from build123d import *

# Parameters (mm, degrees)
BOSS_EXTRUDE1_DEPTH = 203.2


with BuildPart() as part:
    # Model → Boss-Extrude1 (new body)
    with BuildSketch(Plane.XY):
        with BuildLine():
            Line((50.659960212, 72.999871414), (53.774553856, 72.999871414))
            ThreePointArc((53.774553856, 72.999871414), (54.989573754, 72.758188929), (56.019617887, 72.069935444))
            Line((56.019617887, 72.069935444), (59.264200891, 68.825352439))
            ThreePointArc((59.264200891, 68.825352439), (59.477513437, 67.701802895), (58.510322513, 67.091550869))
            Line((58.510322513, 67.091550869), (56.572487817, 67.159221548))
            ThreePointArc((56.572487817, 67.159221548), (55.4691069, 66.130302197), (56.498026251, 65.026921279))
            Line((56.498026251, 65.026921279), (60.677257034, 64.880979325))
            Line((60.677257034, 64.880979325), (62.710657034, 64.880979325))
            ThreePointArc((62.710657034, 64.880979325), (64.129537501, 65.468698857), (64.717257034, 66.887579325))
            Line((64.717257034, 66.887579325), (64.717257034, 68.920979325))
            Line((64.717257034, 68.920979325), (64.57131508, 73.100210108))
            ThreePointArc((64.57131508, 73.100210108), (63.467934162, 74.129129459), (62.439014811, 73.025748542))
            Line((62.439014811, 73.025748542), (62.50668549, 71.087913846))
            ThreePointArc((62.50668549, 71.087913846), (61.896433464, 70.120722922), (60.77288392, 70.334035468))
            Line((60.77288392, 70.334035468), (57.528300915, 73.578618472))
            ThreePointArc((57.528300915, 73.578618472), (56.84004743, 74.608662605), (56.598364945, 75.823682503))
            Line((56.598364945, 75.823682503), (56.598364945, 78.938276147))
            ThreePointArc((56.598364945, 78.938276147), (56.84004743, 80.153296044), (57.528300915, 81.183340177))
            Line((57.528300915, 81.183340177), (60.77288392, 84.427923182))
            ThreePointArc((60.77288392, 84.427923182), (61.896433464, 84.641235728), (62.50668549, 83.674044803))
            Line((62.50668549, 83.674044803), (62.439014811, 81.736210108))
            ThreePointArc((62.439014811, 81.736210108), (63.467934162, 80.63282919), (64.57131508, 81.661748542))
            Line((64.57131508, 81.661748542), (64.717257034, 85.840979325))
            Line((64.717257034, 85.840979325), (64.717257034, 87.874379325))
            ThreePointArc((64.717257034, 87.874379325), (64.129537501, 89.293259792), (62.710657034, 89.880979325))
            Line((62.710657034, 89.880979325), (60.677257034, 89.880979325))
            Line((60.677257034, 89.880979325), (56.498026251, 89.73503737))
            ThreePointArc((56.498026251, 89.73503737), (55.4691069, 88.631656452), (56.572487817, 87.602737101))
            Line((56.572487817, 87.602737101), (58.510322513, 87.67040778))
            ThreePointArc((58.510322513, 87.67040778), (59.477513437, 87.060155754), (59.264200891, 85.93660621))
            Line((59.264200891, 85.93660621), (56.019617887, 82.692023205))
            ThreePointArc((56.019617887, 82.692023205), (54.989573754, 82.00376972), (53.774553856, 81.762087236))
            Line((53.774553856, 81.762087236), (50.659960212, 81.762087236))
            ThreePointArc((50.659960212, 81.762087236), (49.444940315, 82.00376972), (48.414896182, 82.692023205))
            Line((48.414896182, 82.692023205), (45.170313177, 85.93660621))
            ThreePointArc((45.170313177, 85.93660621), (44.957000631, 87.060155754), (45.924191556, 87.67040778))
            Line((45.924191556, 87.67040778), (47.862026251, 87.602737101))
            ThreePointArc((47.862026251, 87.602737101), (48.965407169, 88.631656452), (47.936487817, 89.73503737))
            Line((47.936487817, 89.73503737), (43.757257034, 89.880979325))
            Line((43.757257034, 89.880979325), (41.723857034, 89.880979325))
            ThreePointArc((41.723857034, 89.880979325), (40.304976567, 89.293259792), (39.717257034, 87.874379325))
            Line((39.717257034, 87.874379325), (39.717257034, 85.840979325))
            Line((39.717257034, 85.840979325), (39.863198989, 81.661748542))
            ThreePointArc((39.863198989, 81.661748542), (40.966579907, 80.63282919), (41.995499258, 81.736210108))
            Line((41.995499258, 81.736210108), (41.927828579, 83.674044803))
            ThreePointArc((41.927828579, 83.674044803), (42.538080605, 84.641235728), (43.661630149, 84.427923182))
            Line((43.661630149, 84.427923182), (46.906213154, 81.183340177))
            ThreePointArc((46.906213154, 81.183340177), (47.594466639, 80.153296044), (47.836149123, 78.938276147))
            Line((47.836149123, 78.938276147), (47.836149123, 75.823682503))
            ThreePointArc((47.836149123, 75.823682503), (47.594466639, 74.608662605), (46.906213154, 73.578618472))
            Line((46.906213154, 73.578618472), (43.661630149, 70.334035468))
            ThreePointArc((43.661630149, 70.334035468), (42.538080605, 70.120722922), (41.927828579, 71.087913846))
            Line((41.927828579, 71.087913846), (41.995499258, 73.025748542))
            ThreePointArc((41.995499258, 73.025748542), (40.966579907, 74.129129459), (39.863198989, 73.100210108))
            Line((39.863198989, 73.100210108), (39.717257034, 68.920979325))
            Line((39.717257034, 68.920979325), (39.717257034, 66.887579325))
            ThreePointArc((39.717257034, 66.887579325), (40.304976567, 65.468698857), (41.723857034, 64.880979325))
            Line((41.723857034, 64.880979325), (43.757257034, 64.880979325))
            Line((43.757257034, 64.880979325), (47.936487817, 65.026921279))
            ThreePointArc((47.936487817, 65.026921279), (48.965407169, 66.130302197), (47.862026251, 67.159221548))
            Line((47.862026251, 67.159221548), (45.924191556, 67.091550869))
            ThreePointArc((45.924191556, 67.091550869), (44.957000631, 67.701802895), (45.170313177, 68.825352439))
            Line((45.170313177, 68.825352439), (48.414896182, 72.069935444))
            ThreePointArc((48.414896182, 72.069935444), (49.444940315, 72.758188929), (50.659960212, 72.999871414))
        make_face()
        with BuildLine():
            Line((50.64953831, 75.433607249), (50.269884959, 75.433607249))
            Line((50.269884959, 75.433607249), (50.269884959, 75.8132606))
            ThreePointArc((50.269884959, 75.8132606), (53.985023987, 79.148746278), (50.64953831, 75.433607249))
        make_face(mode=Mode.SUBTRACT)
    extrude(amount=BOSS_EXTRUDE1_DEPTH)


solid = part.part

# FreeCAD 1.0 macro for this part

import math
import FreeCAD as App
import Part
import Sketcher
from FreeCAD import Vector
Q = App.Units.Quantity

doc = App.newDocument("Part")
body = doc.addObject("PartDesign::Body", "Body")

sketch1 = body.newObject("Sketcher::SketchObject", "Sketch")
sketch1.AttachmentSupport = (doc.getObject("XY_Plane"), [""])
sketch1.MapMode = "FlatFace"
sketch1.addGeometry([
    Part.LineSegment(Vector(50.66, 73, 0), Vector(53.77, 73, 0)),
    Part.ArcOfCircle(Part.Circle(Vector(53.77, 69.82, 0), Vector(0, 0, 1), 3.18), math.radians(45), math.radians(90)),
    Part.LineSegment(Vector(56.02, 72.07, 0), Vector(59.26, 68.83, 0)),
    Part.ArcOfCircle(Part.Circle(Vector(58.55, 68.11, 0), Vector(0, 0, 1), 1.02), math.radians(-92), math.radians(45)),
    Part.LineSegment(Vector(58.51, 67.09, 0), Vector(56.57, 67.16, 0)),
    Part.ArcOfCircle(Part.Circle(Vector(56.54, 66.09, 0), Vector(0, 0, 1), 1.07), math.radians(88), math.radians(268)),
    Part.LineSegment(Vector(56.5, 65.03, 0), Vector(60.68, 64.88, 0)),
    Part.LineSegment(Vector(60.68, 64.88, 0), Vector(62.71, 64.88, 0)),
    Part.ArcOfCircle(Part.Circle(Vector(62.71, 66.89, 0), Vector(0, 0, 1), 2.01), math.radians(-90), math.radians(0)),
    Part.LineSegment(Vector(64.72, 66.89, 0), Vector(64.72, 68.92, 0)),
    Part.LineSegment(Vector(64.72, 68.92, 0), Vector(64.57, 73.1, 0)),
    Part.ArcOfCircle(Part.Circle(Vector(63.51, 73.06, 0), Vector(0, 0, 1), 1.07), math.radians(2), math.radians(182)),
    Part.LineSegment(Vector(62.44, 73.03, 0), Vector(62.51, 71.09, 0)),
    Part.ArcOfCircle(Part.Circle(Vector(61.49, 71.05, 0), Vector(0, 0, 1), 1.02), math.radians(-135), math.radians(2)),
    Part.LineSegment(Vector(60.77, 70.33, 0), Vector(57.53, 73.58, 0)),
    Part.ArcOfCircle(Part.Circle(Vector(59.77, 75.82, 0), Vector(0, 0, 1), 3.18), math.radians(-180), math.radians(-135)),
    Part.LineSegment(Vector(56.6, 75.82, 0), Vector(56.6, 78.94, 0)),
    Part.ArcOfCircle(Part.Circle(Vector(59.77, 78.94, 0), Vector(0, 0, 1), 3.18), math.radians(135), math.radians(180)),
    Part.LineSegment(Vector(57.53, 81.18, 0), Vector(60.77, 84.43, 0)),
    Part.ArcOfCircle(Part.Circle(Vector(61.49, 83.71, 0), Vector(0, 0, 1), 1.02), math.radians(-2), math.radians(135)),
    Part.LineSegment(Vector(62.51, 83.67, 0), Vector(62.44, 81.74, 0)),
    Part.ArcOfCircle(Part.Circle(Vector(63.51, 81.7, 0), Vector(0, 0, 1), 1.07), math.radians(178), math.radians(358)),
    Part.LineSegment(Vector(64.57, 81.66, 0), Vector(64.72, 85.84, 0)),
    Part.LineSegment(Vector(64.72, 85.84, 0), Vector(64.72, 87.87, 0)),
    Part.ArcOfCircle(Part.Circle(Vector(62.71, 87.87, 0), Vector(0, 0, 1), 2.01), math.radians(0), math.radians(90)),
    Part.LineSegment(Vector(62.71, 89.88, 0), Vector(60.68, 89.88, 0)),
    Part.LineSegment(Vector(60.68, 89.88, 0), Vector(56.5, 89.74, 0)),
    Part.ArcOfCircle(Part.Circle(Vector(56.54, 88.67, 0), Vector(0, 0, 1), 1.07), math.radians(92), math.radians(272)),
    Part.LineSegment(Vector(56.57, 87.6, 0), Vector(58.51, 87.67, 0)),
    Part.ArcOfCircle(Part.Circle(Vector(58.55, 86.66, 0), Vector(0, 0, 1), 1.02), math.radians(-45), math.radians(92)),
    Part.LineSegment(Vector(59.26, 85.94, 0), Vector(56.02, 82.69, 0)),
    Part.ArcOfCircle(Part.Circle(Vector(53.77, 84.94, 0), Vector(0, 0, 1), 3.18), math.radians(-90), math.radians(-45)),
    Part.LineSegment(Vector(53.77, 81.76, 0), Vector(50.66, 81.76, 0)),
    Part.ArcOfCircle(Part.Circle(Vector(50.66, 84.94, 0), Vector(0, 0, 1), 3.18), math.radians(-135), math.radians(-90)),
    Part.LineSegment(Vector(48.41, 82.69, 0), Vector(45.17, 85.94, 0)),
    Part.ArcOfCircle(Part.Circle(Vector(45.89, 86.66, 0), Vector(0, 0, 1), 1.02), math.radians(88), math.radians(225)),
    Part.LineSegment(Vector(45.92, 87.67, 0), Vector(47.86, 87.6, 0)),
    Part.ArcOfCircle(Part.Circle(Vector(47.9, 88.67, 0), Vector(0, 0, 1), 1.07), math.radians(-92), math.radians(88)),
    Part.LineSegment(Vector(47.94, 89.74, 0), Vector(43.76, 89.88, 0)),
    Part.LineSegment(Vector(43.76, 89.88, 0), Vector(41.72, 89.88, 0)),
    Part.ArcOfCircle(Part.Circle(Vector(41.72, 87.87, 0), Vector(0, 0, 1), 2.01), math.radians(90), math.radians(180)),
    Part.LineSegment(Vector(39.72, 87.87, 0), Vector(39.72, 85.84, 0)),
    Part.LineSegment(Vector(39.72, 85.84, 0), Vector(39.86, 81.66, 0)),
    Part.ArcOfCircle(Part.Circle(Vector(40.93, 81.7, 0), Vector(0, 0, 1), 1.07), math.radians(-178), math.radians(2)),
    Part.LineSegment(Vector(42, 81.74, 0), Vector(41.93, 83.67, 0)),
    Part.ArcOfCircle(Part.Circle(Vector(42.94, 83.71, 0), Vector(0, 0, 1), 1.02), math.radians(45), math.radians(182)),
    Part.LineSegment(Vector(43.66, 84.43, 0), Vector(46.91, 81.18, 0)),
    Part.ArcOfCircle(Part.Circle(Vector(44.66, 78.94, 0), Vector(0, 0, 1), 3.18), math.radians(0), math.radians(45)),
    Part.LineSegment(Vector(47.84, 78.94, 0), Vector(47.84, 75.82, 0)),
    Part.ArcOfCircle(Part.Circle(Vector(44.66, 75.82, 0), Vector(0, 0, 1), 3.18), math.radians(-45), math.radians(0)),
    Part.LineSegment(Vector(46.91, 73.58, 0), Vector(43.66, 70.33, 0)),
    Part.ArcOfCircle(Part.Circle(Vector(42.94, 71.05, 0), Vector(0, 0, 1), 1.02), math.radians(178), math.radians(315)),
    Part.LineSegment(Vector(41.93, 71.09, 0), Vector(42, 73.03, 0)),
    Part.ArcOfCircle(Part.Circle(Vector(40.93, 73.06, 0), Vector(0, 0, 1), 1.07), math.radians(-2), math.radians(178)),
    Part.LineSegment(Vector(39.86, 73.1, 0), Vector(39.72, 68.92, 0)),
    Part.LineSegment(Vector(39.72, 68.92, 0), Vector(39.72, 66.89, 0)),
    Part.ArcOfCircle(Part.Circle(Vector(41.72, 66.89, 0), Vector(0, 0, 1), 2.01), math.radians(180), math.radians(270)),
    Part.LineSegment(Vector(41.72, 64.88, 0), Vector(43.76, 64.88, 0)),
    Part.LineSegment(Vector(43.76, 64.88, 0), Vector(47.94, 65.03, 0)),
    Part.ArcOfCircle(Part.Circle(Vector(47.9, 66.09, 0), Vector(0, 0, 1), 1.07), math.radians(-88), math.radians(92)),
    Part.LineSegment(Vector(47.86, 67.16, 0), Vector(45.92, 67.09, 0)),
    Part.ArcOfCircle(Part.Circle(Vector(45.89, 68.11, 0), Vector(0, 0, 1), 1.02), math.radians(135), math.radians(272)),
    Part.LineSegment(Vector(45.17, 68.83, 0), Vector(48.41, 72.07, 0)),
    Part.ArcOfCircle(Part.Circle(Vector(50.66, 69.82, 0), Vector(0, 0, 1), 3.18), math.radians(90), math.radians(135)),
    Part.ArcOfCircle(Part.Circle(Vector(52.22, 77.38, 0), Vector(0, 0, 1), 2.5), math.radians(-129), math.radians(219)),
    Part.LineSegment(Vector(50.65, 75.43, 0), Vector(50.27, 75.43, 0)),
    Part.LineSegment(Vector(50.27, 75.43, 0), Vector(50.27, 75.81, 0)),
], False)
sketch1.addConstraint([
    Sketcher.Constraint("Tangent", 0, 2, 1, 2),
    Sketcher.Constraint("Tangent", 1, 1, 2, 1),
    Sketcher.Constraint("Tangent", 2, 2, 3, 2),
    Sketcher.Constraint("Tangent", 3, 1, 4, 1),
    Sketcher.Constraint("Tangent", 4, 2, 5, 1),
    Sketcher.Constraint("Tangent", 5, 2, 6, 1),
    Sketcher.Constraint("Coincident", 6, 2, 7, 1),
    Sketcher.Constraint("Tangent", 7, 2, 8, 1),
    Sketcher.Constraint("Tangent", 8, 2, 9, 1),
    Sketcher.Constraint("Coincident", 9, 2, 10, 1),
    Sketcher.Constraint("Tangent", 10, 2, 11, 1),
    Sketcher.Constraint("Tangent", 11, 2, 12, 1),
    Sketcher.Constraint("Tangent", 12, 2, 13, 2),
    Sketcher.Constraint("Tangent", 13, 1, 14, 1),
    Sketcher.Constraint("Tangent", 14, 2, 15, 2),
    Sketcher.Constraint("Tangent", 15, 1, 16, 1),
    Sketcher.Constraint("Tangent", 16, 2, 17, 2),
    Sketcher.Constraint("Tangent", 17, 1, 18, 1),
    Sketcher.Constraint("Tangent", 18, 2, 19, 2),
    Sketcher.Constraint("Tangent", 19, 1, 20, 1),
    Sketcher.Constraint("Tangent", 20, 2, 21, 1),
    Sketcher.Constraint("Tangent", 21, 2, 22, 1),
    Sketcher.Constraint("Coincident", 22, 2, 23, 1),
    Sketcher.Constraint("Tangent", 23, 2, 24, 1),
    Sketcher.Constraint("Tangent", 24, 2, 25, 1),
    Sketcher.Constraint("Coincident", 25, 2, 26, 1),
    Sketcher.Constraint("Tangent", 26, 2, 27, 1),
    Sketcher.Constraint("Tangent", 27, 2, 28, 1),
    Sketcher.Constraint("Tangent", 28, 2, 29, 2),
    Sketcher.Constraint("Tangent", 29, 1, 30, 1),
    Sketcher.Constraint("Tangent", 30, 2, 31, 2),
    Sketcher.Constraint("Tangent", 31, 1, 32, 1),
    Sketcher.Constraint("Tangent", 32, 2, 33, 2),
    Sketcher.Constraint("Tangent", 33, 1, 34, 1),
    Sketcher.Constraint("Tangent", 34, 2, 35, 2),
    Sketcher.Constraint("Tangent", 35, 1, 36, 1),
    Sketcher.Constraint("Tangent", 36, 2, 37, 1),
    Sketcher.Constraint("Tangent", 37, 2, 38, 1),
    Sketcher.Constraint("Coincident", 38, 2, 39, 1),
    Sketcher.Constraint("Tangent", 39, 2, 40, 1),
    Sketcher.Constraint("Tangent", 40, 2, 41, 1),
    Sketcher.Constraint("Coincident", 41, 2, 42, 1),
    Sketcher.Constraint("Tangent", 42, 2, 43, 1),
    Sketcher.Constraint("Tangent", 43, 2, 44, 1),
    Sketcher.Constraint("Tangent", 44, 2, 45, 2),
    Sketcher.Constraint("Tangent", 45, 1, 46, 1),
    Sketcher.Constraint("Tangent", 46, 2, 47, 2),
    Sketcher.Constraint("Tangent", 47, 1, 48, 1),
    Sketcher.Constraint("Tangent", 48, 2, 49, 2),
    Sketcher.Constraint("Tangent", 49, 1, 50, 1),
    Sketcher.Constraint("Tangent", 50, 2, 51, 2),
    Sketcher.Constraint("Tangent", 51, 1, 52, 1),
    Sketcher.Constraint("Tangent", 52, 2, 53, 1),
    Sketcher.Constraint("Tangent", 53, 2, 54, 1),
    Sketcher.Constraint("Coincident", 54, 2, 55, 1),
    Sketcher.Constraint("Tangent", 55, 2, 56, 1),
    Sketcher.Constraint("Tangent", 56, 2, 57, 1),
    Sketcher.Constraint("Coincident", 57, 2, 58, 1),
    Sketcher.Constraint("Tangent", 58, 2, 59, 1),
    Sketcher.Constraint("Tangent", 59, 2, 60, 1),
    Sketcher.Constraint("Tangent", 60, 2, 61, 2),
    Sketcher.Constraint("Tangent", 61, 1, 62, 1),
    Sketcher.Constraint("Tangent", 62, 2, 63, 2),
    Sketcher.Constraint("Tangent", 63, 1, 0, 1),
    Sketcher.Constraint("Coincident", 64, 1, 65, 1),
    Sketcher.Constraint("Coincident", 65, 2, 66, 1),
    Sketcher.Constraint("Coincident", 66, 2, 64, 2),
    Sketcher.Constraint("Horizontal", 0),
    Sketcher.Constraint("Horizontal", 7),
    Sketcher.Constraint("Vertical", 9),
    Sketcher.Constraint("Vertical", 16),
    Sketcher.Constraint("Vertical", 23),
    Sketcher.Constraint("Horizontal", 25),
    Sketcher.Constraint("Horizontal", 32),
    Sketcher.Constraint("Horizontal", 39),
    Sketcher.Constraint("Vertical", 41),
    Sketcher.Constraint("Vertical", 48),
    Sketcher.Constraint("Vertical", 55),
    Sketcher.Constraint("Horizontal", 57),
    Sketcher.Constraint("Horizontal", 65),
    Sketcher.Constraint("Vertical", 66),
    Sketcher.Constraint("Equal", 5, 11),
    Sketcher.Constraint("Equal", 3, 13),
    Sketcher.Constraint("Equal", 1, 15),
    Sketcher.Constraint("Equal", 15, 17),
    Sketcher.Constraint("Equal", 13, 19),
    Sketcher.Constraint("Equal", 11, 21),
    Sketcher.Constraint("Equal", 8, 24),
    Sketcher.Constraint("Equal", 21, 27),
    Sketcher.Constraint("Equal", 19, 29),
    Sketcher.Constraint("Equal", 17, 31),
    Sketcher.Constraint("Equal", 31, 33),
    Sketcher.Constraint("Equal", 29, 35),
    Sketcher.Constraint("Equal", 27, 37),
    Sketcher.Constraint("Equal", 24, 40),
    Sketcher.Constraint("Equal", 37, 43),
    Sketcher.Constraint("Equal", 35, 45),
    Sketcher.Constraint("Equal", 33, 47),
    Sketcher.Constraint("Equal", 47, 49),
    Sketcher.Constraint("Equal", 45, 51),
    Sketcher.Constraint("Equal", 43, 53),
    Sketcher.Constraint("Equal", 40, 56),
    Sketcher.Constraint("Equal", 53, 59),
    Sketcher.Constraint("Equal", 51, 61),
    Sketcher.Constraint("Equal", 49, 63),
    Sketcher.Constraint("Parallel", 4, 6),
    Sketcher.Constraint("Parallel", 10, 12),
    Sketcher.Constraint("Parallel", 2, 14),
    Sketcher.Constraint("Perpendicular", 14, 18),
    Sketcher.Constraint("Perpendicular", 6, 20),
    Sketcher.Constraint("Parallel", 20, 22),
    Sketcher.Constraint("Perpendicular", 12, 26),
    Sketcher.Constraint("Parallel", 26, 28),
    Sketcher.Constraint("Parallel", 18, 30),
    Sketcher.Constraint("Perpendicular", 30, 34),
    Sketcher.Constraint("Perpendicular", 22, 36),
    Sketcher.Constraint("Parallel", 36, 38),
    Sketcher.Constraint("Perpendicular", 28, 42),
    Sketcher.Constraint("Parallel", 42, 44),
    Sketcher.Constraint("Parallel", 34, 46),
    Sketcher.Constraint("Perpendicular", 46, 50),
    Sketcher.Constraint("Perpendicular", 38, 52),
    Sketcher.Constraint("Parallel", 52, 54),
    Sketcher.Constraint("Perpendicular", 44, 58),
    Sketcher.Constraint("Parallel", 58, 60),
    Sketcher.Constraint("Parallel", 50, 62),
    Sketcher.Constraint("Horizontal", 29, 3, 35, 3),
    Sketcher.Constraint("Horizontal", 27, 3, 37, 3),
    Sketcher.Constraint("Horizontal", 24, 3, 40, 3),
    Sketcher.Constraint("Horizontal", 21, 3, 43, 3),
    Sketcher.Constraint("Horizontal", 19, 3, 45, 3),
    Sketcher.Constraint("Horizontal", 17, 3, 47, 3),
    Sketcher.Constraint("Horizontal", 15, 3, 49, 3),
    Sketcher.Constraint("Horizontal", 13, 3, 51, 3),
    Sketcher.Constraint("Horizontal", 11, 3, 53, 3),
    Sketcher.Constraint("Horizontal", 8, 3, 56, 3),
    Sketcher.Constraint("Horizontal", 5, 3, 59, 3),
    Sketcher.Constraint("Horizontal", 3, 3, 61, 3),
    Sketcher.Constraint("Horizontal", 30, 2, 33, 1),
    Sketcher.Constraint("Horizontal", 22, 2, 41, 2),
    Sketcher.Constraint("Horizontal", 21, 2, 42, 2),
    Sketcher.Constraint("Horizontal", 9, 2, 54, 2),
    Sketcher.Constraint("Vertical", 13, 3, 19, 3),
    Sketcher.Constraint("Vertical", 11, 3, 21, 3),
    Sketcher.Constraint("Vertical", 8, 3, 24, 3),
    Sketcher.Constraint("Vertical", 5, 3, 27, 3),
    Sketcher.Constraint("Vertical", 3, 3, 29, 3),
    Sketcher.Constraint("Vertical", 1, 3, 31, 3),
    Sketcher.Constraint("Vertical", 37, 3, 59, 3),
    Sketcher.Constraint("Vertical", 6, 2, 25, 2),
    Sketcher.Constraint("Equal", 25, 39),
    Sketcher.Constraint("Equal", 57, 9),
    Sketcher.Constraint("Equal", 32, 16),
    Sketcher.Constraint("Equal", 9, 23),
    Sketcher.Constraint("Equal", 65, 66),
    Sketcher.Constraint("Equal", 6, 10),
    Sketcher.Constraint("Equal", 4, 12),
    Sketcher.Constraint("Equal", 2, 14),
    Sketcher.Constraint("Radius", 3, Q("0.04 in")),
    Sketcher.Constraint("Angle", 4, Q("178 deg")),
    Sketcher.Constraint("Radius", 1, Q("0.125 in")),
    Sketcher.Constraint("Radius", 5, Q("0.042 in")),
    Sketcher.Constraint("Radius", 8, Q("0.079 in")),
    Sketcher.Constraint("Radius", 64, Q("2.5 mm")),
    Sketcher.Constraint("DistanceX", 7, 1, 7, 2, Q("2.0334 mm")),
    Sketcher.Constraint("DistanceX", -1, 1, 2, 2, Q("59.264201 mm")),
    Sketcher.Constraint("DistanceX", -1, 1, 14, 2, Q("57.528301 mm")),
    Sketcher.Constraint("DistanceX", -1, 1, 42, 2, Q("39.863199 mm")),
    Sketcher.Constraint("Distance", 6, Q("4.181778 mm")),
    Sketcher.Constraint("DistanceX", 0, 1, 0, 2, Q("3.114594 mm")),
    Sketcher.Constraint("DistanceX", 65, 2, 65, 1, Q("0.379653 mm")),
    Sketcher.Constraint("DistanceY", -1, 1, 1, 3, Q("69.824871 mm")),
    Sketcher.Constraint("DistanceY", -1, 1, 64, 3, Q("77.380979 mm")),
    Sketcher.Constraint("DistanceX", -1, 1, 64, 1, Q("50.649538 mm")),
])
pad1 = body.newObject("PartDesign::Pad", "Pad")
pad1.Profile = sketch1
pad1.Length = Q("8 in")

doc.recompute()
